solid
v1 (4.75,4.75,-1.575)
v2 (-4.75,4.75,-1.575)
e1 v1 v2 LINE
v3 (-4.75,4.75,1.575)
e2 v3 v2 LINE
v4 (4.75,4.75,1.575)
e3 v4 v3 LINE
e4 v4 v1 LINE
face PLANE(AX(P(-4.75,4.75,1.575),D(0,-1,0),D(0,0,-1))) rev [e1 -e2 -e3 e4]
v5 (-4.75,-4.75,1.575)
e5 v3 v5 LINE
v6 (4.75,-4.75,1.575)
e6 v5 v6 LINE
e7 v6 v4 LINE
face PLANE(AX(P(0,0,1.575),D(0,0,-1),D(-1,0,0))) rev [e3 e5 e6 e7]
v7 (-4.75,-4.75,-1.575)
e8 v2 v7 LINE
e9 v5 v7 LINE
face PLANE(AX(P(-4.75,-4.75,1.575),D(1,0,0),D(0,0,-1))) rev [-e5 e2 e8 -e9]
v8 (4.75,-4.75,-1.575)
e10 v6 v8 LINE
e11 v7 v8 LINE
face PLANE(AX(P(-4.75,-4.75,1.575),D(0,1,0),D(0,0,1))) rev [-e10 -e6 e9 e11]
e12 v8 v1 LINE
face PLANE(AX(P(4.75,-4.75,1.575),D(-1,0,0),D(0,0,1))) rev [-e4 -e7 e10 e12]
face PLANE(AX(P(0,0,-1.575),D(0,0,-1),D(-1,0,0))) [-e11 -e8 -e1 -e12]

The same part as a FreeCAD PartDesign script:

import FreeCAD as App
import Part
import Sketcher
from FreeCAD import Vector

doc = App.newDocument("Part")
params = doc.addObject("Spreadsheet::Sheet", "Params")
for row, (alias, value) in enumerate([
    ("sketch1_width", "9.5 mm"),
    ("pad1_length", "3.15 mm"),
], start=1):
    params.set(f"A{row}", alias)
    params.set(f"B{row}", "=" + value)
    params.setAlias(f"B{row}", alias)

body = doc.addObject("PartDesign::Body", "Body")

sketch1 = doc.addObject("Sketcher::SketchObject", "Sketch")
body.addObject(sketch1)
sketch1.AttachmentSupport = (doc.XY_Plane, [""])
sketch1.MapMode = "FlatFace"
sketch1.addGeometry([
    Part.LineSegment(Vector(-4.75, 4.75, 0), Vector(-4.75, -4.75, 0)),
    Part.LineSegment(Vector(-4.75, -4.75, 0), Vector(4.75, -4.75, 0)),
    Part.LineSegment(Vector(4.75, -4.75, 0), Vector(4.75, 4.75, 0)),
    Part.LineSegment(Vector(4.75, 4.75, 0), Vector(-4.75, 4.75, 0)),
], False)
sketch1.addConstraint([
    Sketcher.Constraint("Coincident", 0, 2, 1, 1),
    Sketcher.Constraint("Coincident", 1, 2, 2, 1),
    Sketcher.Constraint("Coincident", 2, 2, 3, 1),
    Sketcher.Constraint("Coincident", 3, 2, 0, 1),
    Sketcher.Constraint("Vertical", 0),
    Sketcher.Constraint("Horizontal", 1),
    Sketcher.Constraint("Vertical", 2),
    Sketcher.Constraint("Horizontal", 3),
    Sketcher.Constraint("Symmetric", 0, 2, 2, 2, -1, 1),
    Sketcher.Constraint("Equal", 3, 0),
    Sketcher.Constraint("DistanceX", 1, 1, 1, 2, 9.5),
])
sketch1.setExpression("Constraints[10]", "Params.sketch1_width")
pad1 = doc.addObject("PartDesign::Pad", "Pad")
body.addObject(pad1)
pad1.Profile = sketch1
pad1.setExpression("Length", "Params.pad1_length")
pad1.Midplane = True

doc.recompute()
